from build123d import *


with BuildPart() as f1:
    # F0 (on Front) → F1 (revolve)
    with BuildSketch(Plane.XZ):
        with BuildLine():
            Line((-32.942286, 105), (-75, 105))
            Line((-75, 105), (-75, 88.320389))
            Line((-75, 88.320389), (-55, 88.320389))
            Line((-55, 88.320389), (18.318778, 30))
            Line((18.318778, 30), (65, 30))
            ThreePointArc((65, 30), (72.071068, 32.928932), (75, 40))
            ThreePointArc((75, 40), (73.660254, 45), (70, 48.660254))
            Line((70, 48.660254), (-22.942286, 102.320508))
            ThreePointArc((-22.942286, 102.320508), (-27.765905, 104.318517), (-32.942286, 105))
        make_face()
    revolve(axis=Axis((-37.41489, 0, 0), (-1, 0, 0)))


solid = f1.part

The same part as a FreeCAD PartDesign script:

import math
import FreeCAD as App
import Part
import Sketcher

V = App.Vector
Q = App.Units.Quantity

doc = App.newDocument("Part")
params = doc.addObject("Spreadsheet::Sheet", "Params")
for row, (alias, value) in enumerate([
    ("sketch1_radius", "9.999999 mm"),
    ("sketch1_width", "20 mm"),
    ("revolution_angle", "360 deg"),
], start=1):
    params.set(f"A{row}", alias)
    params.set(f"B{row}", "=" + value)
    params.setAlias(f"B{row}", alias)

body = doc.addObject("PartDesign::Body", "Body")

# Sketch on XZ plane
sketch1 = doc.addObject("Sketcher::SketchObject", "Sketch")
body.addObject(sketch1)
sketch1.AttachmentSupport = (doc.XZ_Plane, [""])
sketch1.MapMode = "FlatFace"
sketch1.addGeometry([
    Part.LineSegment(V(-32.942286, 105, 0), V(-75, 105, 0)),  # 0
    Part.LineSegment(V(-75, 105, 0), V(-75, 88.320389, 0)),  # 1
    Part.LineSegment(V(-75, 88.320389, 0), V(-55, 88.320389, 0)),  # 2
    Part.LineSegment(V(-55, 88.320389, 0), V(18.318778, 30, 0)),  # 3
    Part.LineSegment(V(18.318778, 30, 0), V(65, 30, 0)),  # 4
    Part.ArcOfCircle(Part.Circle(V(65.000001, 39.999999, 0), V(0, 0, 1), 9.999999), math.radians(-90.000004), math.radians(0.000004)),  # 5
    Part.ArcOfCircle(Part.Circle(V(65, 40, 0), V(0, 0, 1), 10), math.radians(0.000001), math.radians(60)),  # 6
    Part.LineSegment(V(70, 48.660254, 0), V(-22.942286, 102.320508, 0)),  # 7
    Part.ArcOfCircle(Part.Circle(V(-32.942282, 85.000015, 0), V(0, 0, 1), 19.999985), math.radians(59.999988), math.radians(90.000011)),  # 8
], False)
sketch1.addConstraint([
    Sketcher.Constraint("Coincident", 0, 2, 1, 1),
    Sketcher.Constraint("Coincident", 1, 2, 2, 1),
    Sketcher.Constraint("Coincident", 2, 2, 3, 1),
    Sketcher.Constraint("Coincident", 3, 2, 4, 1),
    Sketcher.Constraint("Tangent", 4, 2, 5, 1),
    Sketcher.Constraint("Tangent", 5, 2, 6, 1),
    Sketcher.Constraint("Tangent", 6, 2, 7, 1),
    Sketcher.Constraint("Tangent", 7, 2, 8, 1),
    Sketcher.Constraint("Tangent", 8, 2, 0, 1),
    Sketcher.Constraint("Horizontal", 0),
    Sketcher.Constraint("Vertical", 1),
    Sketcher.Constraint("Horizontal", 2),
    Sketcher.Constraint("Horizontal", 4),
    Sketcher.Constraint("Equal", 5, 6),
    Sketcher.Constraint("Horizontal", 6, 3, 5, 2),
    Sketcher.Constraint("Radius", 5, 9.999999),
    Sketcher.Constraint("DistanceX", 2, 1, 2, 2, 20.0),
    Sketcher.Constraint("Angle", 7, Q("150 deg")),
    Sketcher.Constraint("DistanceX", -1, 1, 5, 3, 65.000001),
    Sketcher.Constraint("DistanceY", -1, 1, 5, 3, 39.999999),
    Sketcher.Constraint("DistanceX", 0, 2, -1, 1, 75.0),
    Sketcher.Constraint("DistanceY", -1, 1, 0, 2, 105.0),
    Sketcher.Constraint("Angle", 3, Q("-38.5 deg")),
    Sketcher.Constraint("DistanceX", 8, 2, 7, 2, 10.0),
    Sketcher.Constraint("DistanceY", 1, 2, 1, 1, 16.679611),
])
sketch1.setExpression("Constraints[15]", "Params.sketch1_radius")
sketch1.setExpression("Constraints[16]", "Params.sketch1_width")
revolution = doc.addObject("PartDesign::Revolution", "Revolution")
body.addObject(revolution)
revolution.Profile = sketch1
revolution.ReferenceAxis = (sketch1, ["H_Axis"])
revolution.setExpression("Angle", "Params.revolution_angle")

doc.recompute()
